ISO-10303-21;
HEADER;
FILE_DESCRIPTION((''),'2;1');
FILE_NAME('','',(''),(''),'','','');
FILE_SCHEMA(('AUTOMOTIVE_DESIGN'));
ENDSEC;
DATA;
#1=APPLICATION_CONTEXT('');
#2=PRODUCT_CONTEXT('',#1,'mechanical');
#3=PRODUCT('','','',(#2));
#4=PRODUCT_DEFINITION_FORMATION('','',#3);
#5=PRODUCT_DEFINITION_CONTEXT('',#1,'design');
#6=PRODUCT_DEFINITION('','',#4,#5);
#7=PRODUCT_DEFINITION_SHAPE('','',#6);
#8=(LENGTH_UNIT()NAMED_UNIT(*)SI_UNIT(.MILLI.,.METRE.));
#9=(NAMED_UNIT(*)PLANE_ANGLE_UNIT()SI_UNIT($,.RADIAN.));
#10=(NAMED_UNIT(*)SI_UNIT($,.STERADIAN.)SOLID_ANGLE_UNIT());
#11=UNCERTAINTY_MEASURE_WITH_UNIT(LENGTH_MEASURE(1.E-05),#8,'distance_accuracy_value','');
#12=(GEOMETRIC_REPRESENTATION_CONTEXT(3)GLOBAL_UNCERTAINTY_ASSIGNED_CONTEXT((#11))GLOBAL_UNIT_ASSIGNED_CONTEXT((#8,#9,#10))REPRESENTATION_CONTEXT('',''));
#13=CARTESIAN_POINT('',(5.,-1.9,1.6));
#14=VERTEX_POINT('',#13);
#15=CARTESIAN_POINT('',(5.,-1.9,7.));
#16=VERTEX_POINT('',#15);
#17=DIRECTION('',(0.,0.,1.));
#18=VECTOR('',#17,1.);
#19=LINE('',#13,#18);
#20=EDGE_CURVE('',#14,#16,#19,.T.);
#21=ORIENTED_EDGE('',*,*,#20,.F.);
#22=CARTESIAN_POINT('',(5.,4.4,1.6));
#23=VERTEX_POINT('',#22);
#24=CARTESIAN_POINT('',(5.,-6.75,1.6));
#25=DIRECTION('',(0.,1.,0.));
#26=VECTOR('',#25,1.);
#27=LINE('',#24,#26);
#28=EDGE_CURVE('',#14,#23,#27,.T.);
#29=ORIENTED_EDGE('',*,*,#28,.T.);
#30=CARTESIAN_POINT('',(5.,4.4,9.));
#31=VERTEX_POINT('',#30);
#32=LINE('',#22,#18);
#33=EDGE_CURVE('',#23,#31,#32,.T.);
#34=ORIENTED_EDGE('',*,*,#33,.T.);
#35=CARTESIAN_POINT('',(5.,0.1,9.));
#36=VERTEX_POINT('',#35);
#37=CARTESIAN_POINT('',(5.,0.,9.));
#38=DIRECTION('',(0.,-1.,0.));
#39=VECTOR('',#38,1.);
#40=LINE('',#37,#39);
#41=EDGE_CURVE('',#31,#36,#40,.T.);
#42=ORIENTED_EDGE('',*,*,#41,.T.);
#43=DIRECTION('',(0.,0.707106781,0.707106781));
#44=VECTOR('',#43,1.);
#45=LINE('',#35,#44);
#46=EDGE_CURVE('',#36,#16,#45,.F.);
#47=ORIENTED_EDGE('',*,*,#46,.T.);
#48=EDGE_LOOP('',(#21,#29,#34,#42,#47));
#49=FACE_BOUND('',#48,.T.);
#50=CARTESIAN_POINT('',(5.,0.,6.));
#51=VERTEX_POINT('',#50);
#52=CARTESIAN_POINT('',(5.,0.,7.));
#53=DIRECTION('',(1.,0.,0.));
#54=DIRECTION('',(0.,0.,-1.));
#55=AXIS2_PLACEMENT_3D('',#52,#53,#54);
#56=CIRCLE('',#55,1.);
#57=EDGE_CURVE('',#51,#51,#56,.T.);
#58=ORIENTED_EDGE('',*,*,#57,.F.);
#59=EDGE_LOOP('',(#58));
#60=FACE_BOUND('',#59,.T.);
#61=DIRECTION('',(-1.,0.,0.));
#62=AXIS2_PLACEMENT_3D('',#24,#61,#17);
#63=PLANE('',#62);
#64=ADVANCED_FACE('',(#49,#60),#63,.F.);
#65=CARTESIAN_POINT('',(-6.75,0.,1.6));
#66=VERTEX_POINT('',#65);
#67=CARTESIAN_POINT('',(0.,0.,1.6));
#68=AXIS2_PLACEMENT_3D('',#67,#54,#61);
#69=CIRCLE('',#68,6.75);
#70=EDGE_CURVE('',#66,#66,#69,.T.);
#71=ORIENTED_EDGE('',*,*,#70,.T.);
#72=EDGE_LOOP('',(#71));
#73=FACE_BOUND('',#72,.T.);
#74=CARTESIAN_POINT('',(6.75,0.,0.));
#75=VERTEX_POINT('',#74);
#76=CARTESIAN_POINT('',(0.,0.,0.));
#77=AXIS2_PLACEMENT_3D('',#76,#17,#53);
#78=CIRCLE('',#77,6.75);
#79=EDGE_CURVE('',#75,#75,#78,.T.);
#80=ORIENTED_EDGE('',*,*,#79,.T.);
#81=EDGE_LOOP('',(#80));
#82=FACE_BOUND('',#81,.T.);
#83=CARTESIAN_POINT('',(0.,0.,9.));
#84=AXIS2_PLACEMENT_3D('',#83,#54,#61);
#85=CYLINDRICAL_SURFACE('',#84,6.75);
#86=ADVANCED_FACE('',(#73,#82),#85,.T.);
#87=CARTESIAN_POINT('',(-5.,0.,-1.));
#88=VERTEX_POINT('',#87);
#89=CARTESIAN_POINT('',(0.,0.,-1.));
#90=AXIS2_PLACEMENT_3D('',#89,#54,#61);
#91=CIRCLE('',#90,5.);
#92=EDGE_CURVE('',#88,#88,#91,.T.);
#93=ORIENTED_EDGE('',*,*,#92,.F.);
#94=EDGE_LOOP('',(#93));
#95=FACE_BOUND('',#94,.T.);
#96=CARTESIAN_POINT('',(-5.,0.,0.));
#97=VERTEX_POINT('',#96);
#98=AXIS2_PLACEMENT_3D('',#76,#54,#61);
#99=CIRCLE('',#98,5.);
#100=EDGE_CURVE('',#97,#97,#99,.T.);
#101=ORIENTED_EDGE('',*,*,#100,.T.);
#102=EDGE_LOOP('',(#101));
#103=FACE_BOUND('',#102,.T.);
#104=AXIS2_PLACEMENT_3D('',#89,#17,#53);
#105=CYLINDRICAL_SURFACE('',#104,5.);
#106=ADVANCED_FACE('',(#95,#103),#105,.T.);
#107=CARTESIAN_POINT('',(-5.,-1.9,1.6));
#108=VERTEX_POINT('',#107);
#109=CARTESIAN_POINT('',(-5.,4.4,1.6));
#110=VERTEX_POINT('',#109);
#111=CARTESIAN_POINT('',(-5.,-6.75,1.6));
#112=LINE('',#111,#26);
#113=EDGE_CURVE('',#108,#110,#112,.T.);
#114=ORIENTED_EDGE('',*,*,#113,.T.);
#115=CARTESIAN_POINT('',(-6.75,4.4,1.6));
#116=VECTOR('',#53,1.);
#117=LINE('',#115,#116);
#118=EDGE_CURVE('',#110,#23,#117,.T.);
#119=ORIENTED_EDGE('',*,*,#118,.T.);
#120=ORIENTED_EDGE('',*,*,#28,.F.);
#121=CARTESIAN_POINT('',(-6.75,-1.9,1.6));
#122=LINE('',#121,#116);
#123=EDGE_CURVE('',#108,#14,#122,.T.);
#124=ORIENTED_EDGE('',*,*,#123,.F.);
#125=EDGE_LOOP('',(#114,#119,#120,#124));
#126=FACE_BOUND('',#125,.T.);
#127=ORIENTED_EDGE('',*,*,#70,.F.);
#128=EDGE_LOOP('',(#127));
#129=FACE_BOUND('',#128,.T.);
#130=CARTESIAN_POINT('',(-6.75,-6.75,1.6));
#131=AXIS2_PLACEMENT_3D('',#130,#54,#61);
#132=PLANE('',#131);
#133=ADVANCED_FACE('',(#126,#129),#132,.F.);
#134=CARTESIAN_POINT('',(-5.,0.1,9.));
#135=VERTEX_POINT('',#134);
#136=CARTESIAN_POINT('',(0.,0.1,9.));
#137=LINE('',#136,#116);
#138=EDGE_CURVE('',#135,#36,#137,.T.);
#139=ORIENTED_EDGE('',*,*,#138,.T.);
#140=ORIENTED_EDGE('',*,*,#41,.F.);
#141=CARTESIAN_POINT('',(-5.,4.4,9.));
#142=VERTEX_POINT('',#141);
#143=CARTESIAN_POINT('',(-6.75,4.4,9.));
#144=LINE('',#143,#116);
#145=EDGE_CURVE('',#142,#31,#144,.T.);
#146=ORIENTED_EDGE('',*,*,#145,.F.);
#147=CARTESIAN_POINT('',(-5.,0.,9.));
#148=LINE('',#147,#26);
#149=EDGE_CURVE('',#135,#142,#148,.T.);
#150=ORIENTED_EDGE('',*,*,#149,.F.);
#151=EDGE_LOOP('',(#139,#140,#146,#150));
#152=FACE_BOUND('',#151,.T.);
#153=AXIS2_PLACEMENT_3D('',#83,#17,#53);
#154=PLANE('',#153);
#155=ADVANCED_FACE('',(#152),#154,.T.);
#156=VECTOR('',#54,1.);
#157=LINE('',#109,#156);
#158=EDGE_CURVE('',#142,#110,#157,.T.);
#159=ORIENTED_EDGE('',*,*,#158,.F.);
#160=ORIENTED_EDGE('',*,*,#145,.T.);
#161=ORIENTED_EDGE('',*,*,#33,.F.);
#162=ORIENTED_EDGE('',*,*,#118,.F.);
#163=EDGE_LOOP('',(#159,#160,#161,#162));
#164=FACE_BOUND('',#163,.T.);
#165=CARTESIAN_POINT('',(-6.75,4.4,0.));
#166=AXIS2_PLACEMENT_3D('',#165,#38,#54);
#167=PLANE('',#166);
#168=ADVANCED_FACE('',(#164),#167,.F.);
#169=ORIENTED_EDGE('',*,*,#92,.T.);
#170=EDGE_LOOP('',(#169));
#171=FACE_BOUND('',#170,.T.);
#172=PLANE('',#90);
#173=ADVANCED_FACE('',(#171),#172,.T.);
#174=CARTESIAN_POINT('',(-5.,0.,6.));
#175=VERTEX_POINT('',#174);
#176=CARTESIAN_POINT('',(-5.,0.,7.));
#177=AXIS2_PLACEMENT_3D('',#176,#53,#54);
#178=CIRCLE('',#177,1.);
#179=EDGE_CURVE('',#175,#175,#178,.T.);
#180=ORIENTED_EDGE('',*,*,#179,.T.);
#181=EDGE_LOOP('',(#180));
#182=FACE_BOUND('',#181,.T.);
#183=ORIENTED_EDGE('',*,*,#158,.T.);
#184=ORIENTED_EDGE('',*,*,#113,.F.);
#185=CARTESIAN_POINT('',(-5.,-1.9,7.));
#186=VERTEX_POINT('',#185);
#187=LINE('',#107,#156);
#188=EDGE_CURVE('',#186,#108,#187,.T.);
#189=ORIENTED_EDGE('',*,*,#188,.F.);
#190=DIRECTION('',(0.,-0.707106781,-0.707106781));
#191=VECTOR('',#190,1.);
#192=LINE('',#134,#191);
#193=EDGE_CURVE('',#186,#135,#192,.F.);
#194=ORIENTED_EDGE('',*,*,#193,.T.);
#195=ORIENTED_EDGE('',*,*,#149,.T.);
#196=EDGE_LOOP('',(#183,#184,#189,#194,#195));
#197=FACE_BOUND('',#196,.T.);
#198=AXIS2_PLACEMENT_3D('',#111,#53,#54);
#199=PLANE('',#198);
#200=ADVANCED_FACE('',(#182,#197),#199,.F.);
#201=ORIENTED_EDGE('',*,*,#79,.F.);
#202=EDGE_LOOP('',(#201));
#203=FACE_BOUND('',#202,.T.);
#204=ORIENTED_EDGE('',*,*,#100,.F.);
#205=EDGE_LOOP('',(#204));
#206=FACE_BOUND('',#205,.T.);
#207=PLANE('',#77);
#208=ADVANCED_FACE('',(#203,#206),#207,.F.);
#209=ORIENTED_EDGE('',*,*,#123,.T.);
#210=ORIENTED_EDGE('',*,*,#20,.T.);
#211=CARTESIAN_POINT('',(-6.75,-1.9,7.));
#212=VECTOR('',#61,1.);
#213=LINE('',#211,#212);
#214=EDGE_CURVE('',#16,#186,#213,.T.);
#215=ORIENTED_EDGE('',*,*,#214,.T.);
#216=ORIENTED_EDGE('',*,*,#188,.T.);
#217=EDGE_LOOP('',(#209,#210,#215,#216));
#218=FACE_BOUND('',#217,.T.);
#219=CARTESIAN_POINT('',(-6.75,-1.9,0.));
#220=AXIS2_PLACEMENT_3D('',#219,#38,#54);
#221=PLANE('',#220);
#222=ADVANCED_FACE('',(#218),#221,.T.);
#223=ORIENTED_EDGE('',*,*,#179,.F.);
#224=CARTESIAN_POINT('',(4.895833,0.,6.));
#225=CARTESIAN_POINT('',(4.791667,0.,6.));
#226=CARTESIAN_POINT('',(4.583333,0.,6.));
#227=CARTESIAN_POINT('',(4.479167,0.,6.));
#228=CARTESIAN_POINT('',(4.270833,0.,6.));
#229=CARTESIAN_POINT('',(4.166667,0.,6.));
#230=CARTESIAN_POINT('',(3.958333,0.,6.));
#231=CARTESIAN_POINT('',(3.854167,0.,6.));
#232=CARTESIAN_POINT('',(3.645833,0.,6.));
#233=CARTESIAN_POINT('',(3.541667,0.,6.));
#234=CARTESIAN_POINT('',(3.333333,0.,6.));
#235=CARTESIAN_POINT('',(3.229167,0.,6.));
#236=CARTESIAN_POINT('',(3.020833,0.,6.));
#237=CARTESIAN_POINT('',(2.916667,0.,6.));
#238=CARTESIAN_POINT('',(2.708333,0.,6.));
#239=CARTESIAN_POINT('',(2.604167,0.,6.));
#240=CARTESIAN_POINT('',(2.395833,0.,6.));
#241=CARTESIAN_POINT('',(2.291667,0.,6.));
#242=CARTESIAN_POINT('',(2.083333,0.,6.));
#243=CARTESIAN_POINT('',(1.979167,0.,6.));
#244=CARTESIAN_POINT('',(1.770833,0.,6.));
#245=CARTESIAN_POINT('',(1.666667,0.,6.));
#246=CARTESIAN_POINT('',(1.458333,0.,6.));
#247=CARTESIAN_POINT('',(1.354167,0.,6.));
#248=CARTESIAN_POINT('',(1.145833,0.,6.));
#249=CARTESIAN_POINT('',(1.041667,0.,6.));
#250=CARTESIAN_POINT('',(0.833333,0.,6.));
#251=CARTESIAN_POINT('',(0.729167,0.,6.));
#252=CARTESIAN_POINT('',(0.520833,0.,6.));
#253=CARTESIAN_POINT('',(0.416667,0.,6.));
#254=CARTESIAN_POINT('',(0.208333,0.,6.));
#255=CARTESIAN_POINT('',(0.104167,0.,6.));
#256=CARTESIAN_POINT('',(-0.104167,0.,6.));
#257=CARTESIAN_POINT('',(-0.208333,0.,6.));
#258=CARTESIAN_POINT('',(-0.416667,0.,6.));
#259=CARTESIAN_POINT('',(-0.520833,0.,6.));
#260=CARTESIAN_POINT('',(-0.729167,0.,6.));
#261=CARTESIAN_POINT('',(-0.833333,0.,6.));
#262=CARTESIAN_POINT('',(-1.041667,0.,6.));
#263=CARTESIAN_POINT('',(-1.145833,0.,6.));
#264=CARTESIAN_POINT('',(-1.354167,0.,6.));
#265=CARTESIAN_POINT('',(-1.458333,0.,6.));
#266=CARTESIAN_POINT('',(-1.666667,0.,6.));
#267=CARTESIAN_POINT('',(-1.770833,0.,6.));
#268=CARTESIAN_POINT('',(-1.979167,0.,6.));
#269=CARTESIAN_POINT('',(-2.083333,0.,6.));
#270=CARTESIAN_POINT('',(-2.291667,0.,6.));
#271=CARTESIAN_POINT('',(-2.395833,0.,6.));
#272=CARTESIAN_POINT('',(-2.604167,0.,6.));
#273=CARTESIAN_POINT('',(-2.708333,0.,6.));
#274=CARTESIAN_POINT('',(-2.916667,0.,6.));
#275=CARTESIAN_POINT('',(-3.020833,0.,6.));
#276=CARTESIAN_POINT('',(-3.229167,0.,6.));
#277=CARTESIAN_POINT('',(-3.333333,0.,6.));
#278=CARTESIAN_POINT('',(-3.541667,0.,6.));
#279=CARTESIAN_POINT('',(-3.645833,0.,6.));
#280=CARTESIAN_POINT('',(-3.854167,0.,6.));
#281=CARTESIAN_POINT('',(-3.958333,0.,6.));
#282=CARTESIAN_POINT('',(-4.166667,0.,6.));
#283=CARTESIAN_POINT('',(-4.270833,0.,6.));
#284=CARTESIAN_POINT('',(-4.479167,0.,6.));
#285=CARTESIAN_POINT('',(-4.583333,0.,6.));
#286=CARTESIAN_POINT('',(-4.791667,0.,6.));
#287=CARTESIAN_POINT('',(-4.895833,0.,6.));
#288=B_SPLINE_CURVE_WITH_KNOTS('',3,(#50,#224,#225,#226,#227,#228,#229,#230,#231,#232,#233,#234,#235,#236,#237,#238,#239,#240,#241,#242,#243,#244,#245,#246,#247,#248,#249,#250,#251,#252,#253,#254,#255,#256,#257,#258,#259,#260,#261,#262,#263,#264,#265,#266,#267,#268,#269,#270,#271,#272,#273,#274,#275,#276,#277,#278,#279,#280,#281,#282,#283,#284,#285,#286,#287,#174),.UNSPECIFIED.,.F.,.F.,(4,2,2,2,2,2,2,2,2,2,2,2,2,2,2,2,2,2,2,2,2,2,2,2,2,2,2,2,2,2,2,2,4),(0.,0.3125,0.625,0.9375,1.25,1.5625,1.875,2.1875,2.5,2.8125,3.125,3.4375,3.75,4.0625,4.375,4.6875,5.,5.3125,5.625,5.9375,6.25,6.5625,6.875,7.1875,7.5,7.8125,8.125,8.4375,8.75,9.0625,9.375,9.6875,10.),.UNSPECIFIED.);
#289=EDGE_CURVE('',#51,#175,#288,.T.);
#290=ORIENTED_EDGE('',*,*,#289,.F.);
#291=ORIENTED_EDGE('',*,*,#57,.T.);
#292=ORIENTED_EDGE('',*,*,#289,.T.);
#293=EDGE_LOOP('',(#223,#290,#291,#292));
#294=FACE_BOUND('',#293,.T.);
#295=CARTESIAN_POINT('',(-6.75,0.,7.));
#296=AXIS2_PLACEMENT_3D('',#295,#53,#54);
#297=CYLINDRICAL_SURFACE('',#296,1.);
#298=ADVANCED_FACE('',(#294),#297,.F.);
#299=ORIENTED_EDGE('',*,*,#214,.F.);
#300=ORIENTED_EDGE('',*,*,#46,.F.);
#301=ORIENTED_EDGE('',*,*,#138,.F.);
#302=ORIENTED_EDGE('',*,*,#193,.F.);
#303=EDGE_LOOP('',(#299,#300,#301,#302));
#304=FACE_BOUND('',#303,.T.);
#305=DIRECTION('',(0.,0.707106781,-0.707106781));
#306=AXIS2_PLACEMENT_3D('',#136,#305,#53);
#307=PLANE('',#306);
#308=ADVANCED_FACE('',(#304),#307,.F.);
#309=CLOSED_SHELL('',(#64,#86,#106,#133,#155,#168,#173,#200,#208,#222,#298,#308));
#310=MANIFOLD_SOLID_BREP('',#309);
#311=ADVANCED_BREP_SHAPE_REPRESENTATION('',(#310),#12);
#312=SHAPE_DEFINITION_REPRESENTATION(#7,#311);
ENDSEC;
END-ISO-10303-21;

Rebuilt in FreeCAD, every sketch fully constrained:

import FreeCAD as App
import Part
import Sketcher
from FreeCAD import Vector


def edges_at(feature, points):
    """Names of the edges that pass closest to the given points."""
    edges = feature.Shape.Edges
    near = lambda p: min(range(len(edges)), key=lambda i: edges[i].distToShape(Part.Vertex(*p))[0])
    return sorted({f"Edge{near(p) + 1}" for p in points})


def add_polygon(sketch, points):
    """Adds a closed chain of lines whose ends are joined by coincident constraints."""
    first, n = sketch.GeometryCount, len(points)
    for a, b in zip(points, points[1:] + points[:1]):
        sketch.addGeometry(Part.LineSegment(App.Vector(*a, 0), App.Vector(*b, 0)), False)
    for i in range(n):
        sketch.addConstraint(Sketcher.Constraint("Coincident", first + i, 2, first + (i + 1) % n, 1))

doc = App.newDocument("Part")
body = doc.addObject("PartDesign::Body", "Body")

# Sketch on XY plane
sketch1 = body.newObject("Sketcher::SketchObject", "Sketch")
sketch1.AttachmentSupport = (doc.getObject("XY_Plane"), [""])
sketch1.MapMode = "FlatFace"
sketch1.addGeometry(Part.Circle(Vector(0, 0, 0), Vector(0, 0, 1), 7), False)
sketch1.addConstraint(Sketcher.Constraint("Coincident", 0, 3, -1, 1))
sketch1.addConstraint(Sketcher.Constraint("Diameter", 0, 13.5))
pad1 = body.newObject("PartDesign::Pad", "Pad")
pad1.Profile = sketch1
pad1.Length = 9

# Sketch on XY plane
sketch2 = body.newObject("Sketcher::SketchObject", "Sketch001")
sketch2.AttachmentSupport = (doc.getObject("XY_Plane"), [""])
sketch2.MapMode = "FlatFace"
sketch2.addGeometry(Part.Circle(Vector(0, 0, 0), Vector(0, 0, 1), 5), False)
sketch2.addConstraint(Sketcher.Constraint("Coincident", 0, 3, -1, 1))
sketch2.addConstraint(Sketcher.Constraint("Diameter", 0, 10.0))
pad2 = body.newObject("PartDesign::Pad", "Pad001")
pad2.Profile = sketch2
pad2.Length = 1
pad2.Reversed = True

# Sketch on XZ plane
sketch3 = body.newObject("Sketcher::SketchObject", "Sketch002")
sketch3.AttachmentSupport = (doc.getObject("XZ_Plane"), [""])
sketch3.MapMode = "FlatFace"
add_polygon(sketch3, [(-6.8, 1.6), (-6.8, 9), (-5, 9), (-5, 1.6)])  # lines 0-3
add_polygon(sketch3, [(5, 1.6), (5, 9), (6.8, 9), (6.8, 1.6)])  # lines 4-7
sketch3.addConstraint(Sketcher.Constraint("Vertical", 0))
sketch3.addConstraint(Sketcher.Constraint("Horizontal", 1))
sketch3.addConstraint(Sketcher.Constraint("Vertical", 2))
sketch3.addConstraint(Sketcher.Constraint("Horizontal", 3))
sketch3.addConstraint(Sketcher.Constraint("Vertical", 4))
sketch3.addConstraint(Sketcher.Constraint("Horizontal", 5))
sketch3.addConstraint(Sketcher.Constraint("Vertical", 6))
sketch3.addConstraint(Sketcher.Constraint("Horizontal", 7))
sketch3.addConstraint(Sketcher.Constraint("Symmetric", 1, 2, 4, 2, -2))
sketch3.addConstraint(Sketcher.Constraint("Symmetric", 3, 2, 6, 2, -2))
sketch3.addConstraint(Sketcher.Constraint("DistanceY", 0, 1, 0, 2, 7.4))
sketch3.addConstraint(Sketcher.Constraint("DistanceY", -1, 1, 0, 2, 9.0))
sketch3.addConstraint(Sketcher.Constraint("DistanceX", 1, 2, -1, 1, 5.0))
sketch3.addConstraint(Sketcher.Constraint("DistanceX", 1, 1, 1, 2, 1.75))
pocket1 = body.newObject("PartDesign::Pocket", "Pocket")
pocket1.Profile = sketch3
pocket1.Type = "ThroughAll"
pocket1.Midplane = True

# Sketch on YZ plane
sketch4 = body.newObject("Sketcher::SketchObject", "Sketch003")
sketch4.AttachmentSupport = (doc.getObject("YZ_Plane"), [""])
sketch4.MapMode = "FlatFace"
add_polygon(sketch4, [(-1.9, 9), (-6.8, 9), (-6.8, 1.6), (-1.9, 1.6)])  # lines 0-3
add_polygon(sketch4, [(6.8, 9), (4.4, 9), (4.4, 1.6), (6.8, 1.6)])  # lines 4-7
sketch4.addConstraint(Sketcher.Constraint("Horizontal", 0))
sketch4.addConstraint(Sketcher.Constraint("Vertical", 1))
sketch4.addConstraint(Sketcher.Constraint("Horizontal", 2))
sketch4.addConstraint(Sketcher.Constraint("Vertical", 3))
sketch4.addConstraint(Sketcher.Constraint("Horizontal", 4))
sketch4.addConstraint(Sketcher.Constraint("Vertical", 5))
sketch4.addConstraint(Sketcher.Constraint("Horizontal", 6))
sketch4.addConstraint(Sketcher.Constraint("Vertical", 7))
sketch4.addConstraint(Sketcher.Constraint("Symmetric", 1, 2, 6, 2, -2))
sketch4.addConstraint(Sketcher.Constraint("Horizontal", 3, 2, 4, 2))
sketch4.addConstraint(Sketcher.Constraint("DistanceY", 1, 2, 1, 1, 7.4))
sketch4.addConstraint(Sketcher.Constraint("DistanceY", -1, 1, 0, 2, 9.0))
sketch4.addConstraint(Sketcher.Constraint("DistanceX", 0, 2, 0, 1, 4.85))
sketch4.addConstraint(Sketcher.Constraint("DistanceX", 4, 2, 4, 1, 2.35))
sketch4.addConstraint(Sketcher.Constraint("DistanceX", 2, 2, -1, 1, 1.9))
pocket2 = body.newObject("PartDesign::Pocket", "Pocket001")
pocket2.Profile = sketch4
pocket2.Type = "ThroughAll"
pocket2.Midplane = True

# Sketch on YZ plane
sketch5 = body.newObject("Sketcher::SketchObject", "Sketch004")
sketch5.AttachmentSupport = (doc.getObject("YZ_Plane"), [""])
sketch5.MapMode = "FlatFace"
sketch5.AttachmentOffset = App.Placement(Vector(0, 0, 5), App.Rotation())
sketch5.addGeometry(Part.Circle(Vector(0, 7, 0), Vector(0, 0, 1), 1), False)
sketch5.addConstraint(Sketcher.Constraint("PointOnObject", 0, 3, -2))
sketch5.addConstraint(Sketcher.Constraint("Diameter", 0, 2.0))
sketch5.addConstraint(Sketcher.Constraint("DistanceY", -1, 1, 0, 3, 7.0))
pocket3 = body.newObject("PartDesign::Pocket", "Pocket002")
pocket3.Profile = sketch5
pocket3.Type = "ThroughAll"
pocket3.Midplane = True
doc.recompute()

chamfer = body.newObject("PartDesign::Chamfer", "Chamfer")
chamfer.Base = (pocket3, edges_at(pocket3, [(0, -1.9, 9)]))
chamfer.Size = 2

doc.recompute()
